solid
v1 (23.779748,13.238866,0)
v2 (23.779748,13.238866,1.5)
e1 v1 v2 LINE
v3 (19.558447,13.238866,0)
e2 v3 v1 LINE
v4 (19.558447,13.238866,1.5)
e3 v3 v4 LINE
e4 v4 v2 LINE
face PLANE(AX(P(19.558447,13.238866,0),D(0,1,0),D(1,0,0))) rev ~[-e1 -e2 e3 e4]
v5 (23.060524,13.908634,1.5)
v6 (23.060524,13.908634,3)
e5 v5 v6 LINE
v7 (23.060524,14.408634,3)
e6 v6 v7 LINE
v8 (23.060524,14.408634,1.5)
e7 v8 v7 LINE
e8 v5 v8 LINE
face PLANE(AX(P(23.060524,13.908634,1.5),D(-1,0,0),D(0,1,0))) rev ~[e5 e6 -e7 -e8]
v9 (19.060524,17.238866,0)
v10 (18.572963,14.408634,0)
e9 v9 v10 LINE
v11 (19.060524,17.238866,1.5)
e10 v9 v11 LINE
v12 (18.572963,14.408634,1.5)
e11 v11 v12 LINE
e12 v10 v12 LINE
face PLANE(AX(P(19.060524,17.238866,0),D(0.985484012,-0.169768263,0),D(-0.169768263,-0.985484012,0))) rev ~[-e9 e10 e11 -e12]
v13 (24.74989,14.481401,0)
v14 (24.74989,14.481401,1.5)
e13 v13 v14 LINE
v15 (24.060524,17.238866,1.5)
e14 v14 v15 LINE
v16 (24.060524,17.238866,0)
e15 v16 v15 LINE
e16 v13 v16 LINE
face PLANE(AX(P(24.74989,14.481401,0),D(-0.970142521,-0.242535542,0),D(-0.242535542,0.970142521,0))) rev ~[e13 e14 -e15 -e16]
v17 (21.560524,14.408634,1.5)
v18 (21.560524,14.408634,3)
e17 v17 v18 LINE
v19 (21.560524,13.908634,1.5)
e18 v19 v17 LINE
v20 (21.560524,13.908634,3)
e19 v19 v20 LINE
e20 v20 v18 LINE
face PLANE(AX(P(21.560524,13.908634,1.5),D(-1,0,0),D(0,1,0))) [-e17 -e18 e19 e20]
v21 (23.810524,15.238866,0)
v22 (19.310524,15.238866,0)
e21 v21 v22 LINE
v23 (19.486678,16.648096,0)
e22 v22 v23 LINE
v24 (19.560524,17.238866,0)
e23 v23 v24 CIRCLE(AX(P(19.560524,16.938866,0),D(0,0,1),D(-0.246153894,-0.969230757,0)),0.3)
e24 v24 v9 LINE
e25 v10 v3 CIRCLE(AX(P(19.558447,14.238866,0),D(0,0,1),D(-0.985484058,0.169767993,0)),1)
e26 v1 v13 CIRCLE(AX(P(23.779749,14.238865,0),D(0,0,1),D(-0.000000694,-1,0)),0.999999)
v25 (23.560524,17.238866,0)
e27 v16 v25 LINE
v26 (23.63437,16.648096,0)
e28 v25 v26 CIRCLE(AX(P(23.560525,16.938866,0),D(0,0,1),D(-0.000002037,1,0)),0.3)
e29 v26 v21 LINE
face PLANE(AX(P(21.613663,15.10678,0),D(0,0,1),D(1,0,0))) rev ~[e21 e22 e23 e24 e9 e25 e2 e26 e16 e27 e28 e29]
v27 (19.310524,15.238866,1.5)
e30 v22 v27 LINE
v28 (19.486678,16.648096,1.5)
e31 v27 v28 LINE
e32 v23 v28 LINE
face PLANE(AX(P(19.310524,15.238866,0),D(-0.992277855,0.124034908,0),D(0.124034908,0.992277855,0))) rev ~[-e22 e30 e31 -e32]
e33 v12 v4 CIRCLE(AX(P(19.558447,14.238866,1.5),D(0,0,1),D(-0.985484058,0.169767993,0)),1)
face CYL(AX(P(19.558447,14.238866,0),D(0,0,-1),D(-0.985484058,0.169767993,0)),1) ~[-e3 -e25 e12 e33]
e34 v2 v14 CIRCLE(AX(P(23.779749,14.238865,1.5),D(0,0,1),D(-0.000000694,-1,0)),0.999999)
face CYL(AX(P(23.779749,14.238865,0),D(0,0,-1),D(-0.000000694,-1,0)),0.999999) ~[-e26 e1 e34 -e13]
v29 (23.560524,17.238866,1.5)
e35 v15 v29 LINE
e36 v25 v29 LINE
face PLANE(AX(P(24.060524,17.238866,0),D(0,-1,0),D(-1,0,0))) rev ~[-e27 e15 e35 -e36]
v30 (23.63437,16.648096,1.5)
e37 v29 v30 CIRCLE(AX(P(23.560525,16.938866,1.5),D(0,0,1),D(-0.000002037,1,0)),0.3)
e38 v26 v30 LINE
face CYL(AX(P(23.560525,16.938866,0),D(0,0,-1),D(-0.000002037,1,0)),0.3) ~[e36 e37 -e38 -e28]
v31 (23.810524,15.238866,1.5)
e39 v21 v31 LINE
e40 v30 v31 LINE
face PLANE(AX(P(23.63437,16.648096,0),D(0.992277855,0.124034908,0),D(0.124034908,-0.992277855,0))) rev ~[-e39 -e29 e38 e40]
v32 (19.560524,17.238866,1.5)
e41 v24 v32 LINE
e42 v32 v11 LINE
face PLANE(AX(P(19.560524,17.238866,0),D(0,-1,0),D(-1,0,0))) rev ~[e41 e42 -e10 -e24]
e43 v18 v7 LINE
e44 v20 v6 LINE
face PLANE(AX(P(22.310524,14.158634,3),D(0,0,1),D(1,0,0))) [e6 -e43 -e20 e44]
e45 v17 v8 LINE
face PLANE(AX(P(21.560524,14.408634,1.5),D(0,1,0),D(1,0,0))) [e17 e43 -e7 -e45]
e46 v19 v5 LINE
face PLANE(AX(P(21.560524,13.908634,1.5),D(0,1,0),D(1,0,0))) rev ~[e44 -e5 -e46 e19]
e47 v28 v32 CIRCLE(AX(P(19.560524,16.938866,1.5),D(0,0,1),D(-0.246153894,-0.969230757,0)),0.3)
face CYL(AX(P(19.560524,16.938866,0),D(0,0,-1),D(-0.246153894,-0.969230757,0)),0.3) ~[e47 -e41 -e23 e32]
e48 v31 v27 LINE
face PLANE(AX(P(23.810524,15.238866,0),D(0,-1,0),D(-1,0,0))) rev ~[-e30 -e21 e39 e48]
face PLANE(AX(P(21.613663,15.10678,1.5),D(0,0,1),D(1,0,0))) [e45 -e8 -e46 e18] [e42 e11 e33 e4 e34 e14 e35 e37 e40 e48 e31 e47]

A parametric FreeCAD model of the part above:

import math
import FreeCAD as App
import Part
import Sketcher
from FreeCAD import Vector


def add_polygon(sketch, points):
    """Adds a closed chain of lines whose ends are joined by coincident constraints."""
    first, n = sketch.GeometryCount, len(points)
    for a, b in zip(points, points[1:] + points[:1]):
        sketch.addGeometry(Part.LineSegment(App.Vector(*a, 0), App.Vector(*b, 0)), False)
    for i in range(n):
        sketch.addConstraint(Sketcher.Constraint("Coincident", first + i, 2, first + (i + 1) % n, 1))

doc = App.newDocument("Part")
body = doc.addObject("PartDesign::Body", "Body")

# Sketch on XY plane
sketch1 = doc.addObject("Sketcher::SketchObject", "Sketch")
body.addObject(sketch1)
sketch1.AttachmentSupport = (doc.XY_Plane, [""])
sketch1.MapMode = "FlatFace"
sketch1.addGeometry([
    Part.LineSegment(Vector(19.31, 15.24, 0), Vector(19.49, 16.65, 0)),  # 0
    Part.ArcOfCircle(Part.Circle(Vector(19.56, 16.94, 0), Vector(0, 0, 1), 0.3), math.radians(-104), math.radians(90)),  # 1
    Part.LineSegment(Vector(19.56, 17.24, 0), Vector(19.06, 17.24, 0)),  # 2
    Part.LineSegment(Vector(19.06, 17.24, 0), Vector(18.57, 14.41, 0)),  # 3
    Part.ArcOfCircle(Part.Circle(Vector(19.56, 14.24, 0), Vector(0, 0, 1), 1), math.radians(170), math.radians(270)),  # 4
    Part.LineSegment(Vector(19.56, 13.24, 0), Vector(23.78, 13.24, 0)),  # 5
    Part.ArcOfCircle(Part.Circle(Vector(23.78, 14.24, 0), Vector(0, 0, 1), 1), math.radians(-90), math.radians(14)),  # 6
    Part.LineSegment(Vector(24.75, 14.48, 0), Vector(24.06, 17.24, 0)),  # 7
    Part.LineSegment(Vector(24.06, 17.24, 0), Vector(23.56, 17.24, 0)),  # 8
    Part.ArcOfCircle(Part.Circle(Vector(23.56, 16.94, 0), Vector(0, 0, 1), 0.3), math.radians(90), math.radians(284)),  # 9
    Part.LineSegment(Vector(23.63, 16.65, 0), Vector(23.81, 15.24, 0)),  # 10
    Part.LineSegment(Vector(23.81, 15.24, 0), Vector(19.31, 15.24, 0)),  # 11
], False)
sketch1.addConstraint([
    Sketcher.Constraint("Coincident", 0, 2, 1, 1),
    Sketcher.Constraint("Tangent", 1, 2, 2, 1),
    Sketcher.Constraint("Coincident", 2, 2, 3, 1),
    Sketcher.Constraint("Tangent", 3, 2, 4, 1),
    Sketcher.Constraint("Tangent", 4, 2, 5, 1),
    Sketcher.Constraint("Tangent", 5, 2, 6, 1),
    Sketcher.Constraint("Tangent", 6, 2, 7, 1),
    Sketcher.Constraint("Coincident", 7, 2, 8, 1),
    Sketcher.Constraint("Coincident", 8, 2, 9, 1),
    Sketcher.Constraint("Coincident", 9, 2, 10, 1),
    Sketcher.Constraint("Coincident", 10, 2, 11, 1),
    Sketcher.Constraint("Coincident", 11, 2, 0, 1),
    Sketcher.Constraint("Horizontal", 2),
    Sketcher.Constraint("Horizontal", 5),
    Sketcher.Constraint("Horizontal", 8),
    Sketcher.Constraint("Horizontal", 11),
    Sketcher.Constraint("Equal", 4, 6),
    Sketcher.Constraint("Equal", 1, 9),
    Sketcher.Constraint("Horizontal", 1, 3, 9, 3),
    Sketcher.Constraint("Horizontal", 0, 2, 9, 2),
    Sketcher.Constraint("Vertical", 9, 3, 8, 2),
    Sketcher.Constraint("Equal", 2, 8),
    Sketcher.Constraint("Equal", 0, 10),
    Sketcher.Constraint("Radius", 4, 1.0),
    Sketcher.Constraint("Radius", 1, 0.3),
    Sketcher.Constraint("DistanceX", 2, 2, 2, 1, 0.5),
    Sketcher.Constraint("DistanceX", 11, 2, 11, 1, 4.5),
    Sketcher.Constraint("DistanceX", 1, 3, 9, 3, 4.0),
    Sketcher.Constraint("DistanceY", 4, 3, 1, 2, 3.0),
    Sketcher.Constraint("DistanceY", 6, 3, 10, 2, 1.000001),
    Sketcher.Constraint("DistanceX", 5, 1, 5, 2, 4.221301),
    Sketcher.Constraint("DistanceY", -1, 1, 6, 2, 14.481401),
    Sketcher.Constraint("Distance", 3, 2.871921),
    Sketcher.Constraint("DistanceX", -1, 1, 6, 3, 23.779749),
    Sketcher.Constraint("DistanceX", -1, 1, 0, 2, 19.486678),
])
pad1 = doc.addObject("PartDesign::Pad", "Pad")
body.addObject(pad1)
pad1.Profile = sketch1
pad1.Length = 1.5

# Sketch on XY plane
sketch2 = doc.addObject("Sketcher::SketchObject", "Sketch001")
body.addObject(sketch2)
sketch2.AttachmentSupport = (doc.XY_Plane, [""])
sketch2.MapMode = "FlatFace"
sketch2.AttachmentOffset = App.Placement(Vector(0, 0, 1.5), App.Rotation())
add_polygon(sketch2, [(21.6, 14.4), (21.6, 13.9), (23.1, 13.9), (23.1, 14.4)])  # lines 0-3
sketch2.addConstraint([
    Sketcher.Constraint("Vertical", 0),
    Sketcher.Constraint("Horizontal", 1),
    Sketcher.Constraint("Vertical", 2),
    Sketcher.Constraint("Horizontal", 3),
    Sketcher.Constraint("DistanceX", 1, 1, 1, 2, 1.5),
    Sketcher.Constraint("DistanceY", 0, 2, 0, 1, 0.5),
    Sketcher.Constraint("DistanceX", -1, 1, 0, 2, 21.560524),
    Sketcher.Constraint("DistanceY", -1, 1, 0, 2, 13.908634),
])
pad2 = doc.addObject("PartDesign::Pad", "Pad001")
body.addObject(pad2)
pad2.Profile = sketch2
pad2.Length = 1.5

doc.recompute()
